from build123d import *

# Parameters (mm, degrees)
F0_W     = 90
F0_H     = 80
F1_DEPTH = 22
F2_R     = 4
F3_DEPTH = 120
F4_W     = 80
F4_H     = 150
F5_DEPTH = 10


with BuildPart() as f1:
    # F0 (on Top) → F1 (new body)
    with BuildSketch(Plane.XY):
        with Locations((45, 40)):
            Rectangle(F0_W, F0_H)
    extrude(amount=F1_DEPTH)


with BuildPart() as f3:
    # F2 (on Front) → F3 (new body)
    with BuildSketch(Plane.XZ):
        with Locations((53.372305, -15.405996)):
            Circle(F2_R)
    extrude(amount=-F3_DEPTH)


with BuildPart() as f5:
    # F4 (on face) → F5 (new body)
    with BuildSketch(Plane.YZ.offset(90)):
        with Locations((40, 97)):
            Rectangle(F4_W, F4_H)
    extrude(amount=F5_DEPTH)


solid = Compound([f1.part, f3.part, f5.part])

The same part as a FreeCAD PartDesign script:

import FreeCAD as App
import Part
import Sketcher
from FreeCAD import Vector


def add_polygon(sketch, points):
    """Adds a closed chain of lines whose ends are joined by coincident constraints."""
    first, n = sketch.GeometryCount, len(points)
    for a, b in zip(points, points[1:] + points[:1]):
        sketch.addGeometry(Part.LineSegment(App.Vector(*a, 0), App.Vector(*b, 0)), False)
    for i in range(n):
        sketch.addConstraint(Sketcher.Constraint("Coincident", first + i, 2, first + (i + 1) % n, 1))

doc = App.newDocument("Part")
body = doc.addObject("PartDesign::Body", "Body")

# Sketch on XY plane
sketch1 = body.newObject("Sketcher::SketchObject", "Sketch")
sketch1.AttachmentSupport = (doc.getObject("XY_Plane"), [""])
sketch1.MapMode = "FlatFace"
add_polygon(sketch1, [(0, 80), (0, 0), (90, 0), (90, 80)])  # lines 0-3
sketch1.addConstraint([
    Sketcher.Constraint("Vertical", 0),
    Sketcher.Constraint("Horizontal", 1),
    Sketcher.Constraint("Vertical", 2),
    Sketcher.Constraint("Horizontal", 3),
    Sketcher.Constraint("Coincident", 0, 2, -1, 1),
    Sketcher.Constraint("DistanceX", 1, 1, 1, 2, 90.0),
    Sketcher.Constraint("DistanceY", 0, 2, 0, 1, 80.0),
])
pad1 = body.newObject("PartDesign::Pad", "Pad")
pad1.Profile = sketch1
pad1.Length = 22
body2 = doc.addObject("PartDesign::Body", "Body001")

# Sketch on XZ plane
sketch2 = body2.newObject("Sketcher::SketchObject", "Sketch001")
sketch2.AttachmentSupport = (doc.getObject("XZ_Plane001"), [""])
sketch2.MapMode = "FlatFace"
sketch2.addGeometry(Part.Circle(Vector(53.4, -15.4, 0), Vector(0, 0, 1), 4), False)
sketch2.addConstraint([
    Sketcher.Constraint("Diameter", 0, 8.0),
    Sketcher.Constraint("DistanceX", -1, 1, 0, 3, 53.372305),
    Sketcher.Constraint("DistanceY", 0, 3, -1, 1, 15.405996),
])
pad2 = body2.newObject("PartDesign::Pad", "Pad001")
pad2.Profile = sketch2
pad2.Length = 120
pad2.Reversed = True
body3 = doc.addObject("PartDesign::Body", "Body002")

# Sketch on YZ plane
sketch3 = body3.newObject("Sketcher::SketchObject", "Sketch002")
sketch3.AttachmentSupport = (doc.getObject("YZ_Plane002"), [""])
sketch3.MapMode = "FlatFace"
sketch3.AttachmentOffset = App.Placement(Vector(0, 0, 90), App.Rotation())
add_polygon(sketch3, [(0, 172), (0, 22), (80, 22), (80, 172)])  # lines 0-3
sketch3.addConstraint([
    Sketcher.Constraint("Vertical", 0),
    Sketcher.Constraint("Horizontal", 1),
    Sketcher.Constraint("Vertical", 2),
    Sketcher.Constraint("Horizontal", 3),
    Sketcher.Constraint("PointOnObject", 0, 2, -2),
    Sketcher.Constraint("DistanceX", 1, 1, 1, 2, 80.0),
    Sketcher.Constraint("DistanceY", 0, 2, 0, 1, 150.0),
    Sketcher.Constraint("DistanceY", -1, 1, 0, 2, 22.0),
])
pad3 = body3.newObject("PartDesign::Pad", "Pad002")
pad3.Profile = sketch3
pad3.Length = 10

doc.recompute()
